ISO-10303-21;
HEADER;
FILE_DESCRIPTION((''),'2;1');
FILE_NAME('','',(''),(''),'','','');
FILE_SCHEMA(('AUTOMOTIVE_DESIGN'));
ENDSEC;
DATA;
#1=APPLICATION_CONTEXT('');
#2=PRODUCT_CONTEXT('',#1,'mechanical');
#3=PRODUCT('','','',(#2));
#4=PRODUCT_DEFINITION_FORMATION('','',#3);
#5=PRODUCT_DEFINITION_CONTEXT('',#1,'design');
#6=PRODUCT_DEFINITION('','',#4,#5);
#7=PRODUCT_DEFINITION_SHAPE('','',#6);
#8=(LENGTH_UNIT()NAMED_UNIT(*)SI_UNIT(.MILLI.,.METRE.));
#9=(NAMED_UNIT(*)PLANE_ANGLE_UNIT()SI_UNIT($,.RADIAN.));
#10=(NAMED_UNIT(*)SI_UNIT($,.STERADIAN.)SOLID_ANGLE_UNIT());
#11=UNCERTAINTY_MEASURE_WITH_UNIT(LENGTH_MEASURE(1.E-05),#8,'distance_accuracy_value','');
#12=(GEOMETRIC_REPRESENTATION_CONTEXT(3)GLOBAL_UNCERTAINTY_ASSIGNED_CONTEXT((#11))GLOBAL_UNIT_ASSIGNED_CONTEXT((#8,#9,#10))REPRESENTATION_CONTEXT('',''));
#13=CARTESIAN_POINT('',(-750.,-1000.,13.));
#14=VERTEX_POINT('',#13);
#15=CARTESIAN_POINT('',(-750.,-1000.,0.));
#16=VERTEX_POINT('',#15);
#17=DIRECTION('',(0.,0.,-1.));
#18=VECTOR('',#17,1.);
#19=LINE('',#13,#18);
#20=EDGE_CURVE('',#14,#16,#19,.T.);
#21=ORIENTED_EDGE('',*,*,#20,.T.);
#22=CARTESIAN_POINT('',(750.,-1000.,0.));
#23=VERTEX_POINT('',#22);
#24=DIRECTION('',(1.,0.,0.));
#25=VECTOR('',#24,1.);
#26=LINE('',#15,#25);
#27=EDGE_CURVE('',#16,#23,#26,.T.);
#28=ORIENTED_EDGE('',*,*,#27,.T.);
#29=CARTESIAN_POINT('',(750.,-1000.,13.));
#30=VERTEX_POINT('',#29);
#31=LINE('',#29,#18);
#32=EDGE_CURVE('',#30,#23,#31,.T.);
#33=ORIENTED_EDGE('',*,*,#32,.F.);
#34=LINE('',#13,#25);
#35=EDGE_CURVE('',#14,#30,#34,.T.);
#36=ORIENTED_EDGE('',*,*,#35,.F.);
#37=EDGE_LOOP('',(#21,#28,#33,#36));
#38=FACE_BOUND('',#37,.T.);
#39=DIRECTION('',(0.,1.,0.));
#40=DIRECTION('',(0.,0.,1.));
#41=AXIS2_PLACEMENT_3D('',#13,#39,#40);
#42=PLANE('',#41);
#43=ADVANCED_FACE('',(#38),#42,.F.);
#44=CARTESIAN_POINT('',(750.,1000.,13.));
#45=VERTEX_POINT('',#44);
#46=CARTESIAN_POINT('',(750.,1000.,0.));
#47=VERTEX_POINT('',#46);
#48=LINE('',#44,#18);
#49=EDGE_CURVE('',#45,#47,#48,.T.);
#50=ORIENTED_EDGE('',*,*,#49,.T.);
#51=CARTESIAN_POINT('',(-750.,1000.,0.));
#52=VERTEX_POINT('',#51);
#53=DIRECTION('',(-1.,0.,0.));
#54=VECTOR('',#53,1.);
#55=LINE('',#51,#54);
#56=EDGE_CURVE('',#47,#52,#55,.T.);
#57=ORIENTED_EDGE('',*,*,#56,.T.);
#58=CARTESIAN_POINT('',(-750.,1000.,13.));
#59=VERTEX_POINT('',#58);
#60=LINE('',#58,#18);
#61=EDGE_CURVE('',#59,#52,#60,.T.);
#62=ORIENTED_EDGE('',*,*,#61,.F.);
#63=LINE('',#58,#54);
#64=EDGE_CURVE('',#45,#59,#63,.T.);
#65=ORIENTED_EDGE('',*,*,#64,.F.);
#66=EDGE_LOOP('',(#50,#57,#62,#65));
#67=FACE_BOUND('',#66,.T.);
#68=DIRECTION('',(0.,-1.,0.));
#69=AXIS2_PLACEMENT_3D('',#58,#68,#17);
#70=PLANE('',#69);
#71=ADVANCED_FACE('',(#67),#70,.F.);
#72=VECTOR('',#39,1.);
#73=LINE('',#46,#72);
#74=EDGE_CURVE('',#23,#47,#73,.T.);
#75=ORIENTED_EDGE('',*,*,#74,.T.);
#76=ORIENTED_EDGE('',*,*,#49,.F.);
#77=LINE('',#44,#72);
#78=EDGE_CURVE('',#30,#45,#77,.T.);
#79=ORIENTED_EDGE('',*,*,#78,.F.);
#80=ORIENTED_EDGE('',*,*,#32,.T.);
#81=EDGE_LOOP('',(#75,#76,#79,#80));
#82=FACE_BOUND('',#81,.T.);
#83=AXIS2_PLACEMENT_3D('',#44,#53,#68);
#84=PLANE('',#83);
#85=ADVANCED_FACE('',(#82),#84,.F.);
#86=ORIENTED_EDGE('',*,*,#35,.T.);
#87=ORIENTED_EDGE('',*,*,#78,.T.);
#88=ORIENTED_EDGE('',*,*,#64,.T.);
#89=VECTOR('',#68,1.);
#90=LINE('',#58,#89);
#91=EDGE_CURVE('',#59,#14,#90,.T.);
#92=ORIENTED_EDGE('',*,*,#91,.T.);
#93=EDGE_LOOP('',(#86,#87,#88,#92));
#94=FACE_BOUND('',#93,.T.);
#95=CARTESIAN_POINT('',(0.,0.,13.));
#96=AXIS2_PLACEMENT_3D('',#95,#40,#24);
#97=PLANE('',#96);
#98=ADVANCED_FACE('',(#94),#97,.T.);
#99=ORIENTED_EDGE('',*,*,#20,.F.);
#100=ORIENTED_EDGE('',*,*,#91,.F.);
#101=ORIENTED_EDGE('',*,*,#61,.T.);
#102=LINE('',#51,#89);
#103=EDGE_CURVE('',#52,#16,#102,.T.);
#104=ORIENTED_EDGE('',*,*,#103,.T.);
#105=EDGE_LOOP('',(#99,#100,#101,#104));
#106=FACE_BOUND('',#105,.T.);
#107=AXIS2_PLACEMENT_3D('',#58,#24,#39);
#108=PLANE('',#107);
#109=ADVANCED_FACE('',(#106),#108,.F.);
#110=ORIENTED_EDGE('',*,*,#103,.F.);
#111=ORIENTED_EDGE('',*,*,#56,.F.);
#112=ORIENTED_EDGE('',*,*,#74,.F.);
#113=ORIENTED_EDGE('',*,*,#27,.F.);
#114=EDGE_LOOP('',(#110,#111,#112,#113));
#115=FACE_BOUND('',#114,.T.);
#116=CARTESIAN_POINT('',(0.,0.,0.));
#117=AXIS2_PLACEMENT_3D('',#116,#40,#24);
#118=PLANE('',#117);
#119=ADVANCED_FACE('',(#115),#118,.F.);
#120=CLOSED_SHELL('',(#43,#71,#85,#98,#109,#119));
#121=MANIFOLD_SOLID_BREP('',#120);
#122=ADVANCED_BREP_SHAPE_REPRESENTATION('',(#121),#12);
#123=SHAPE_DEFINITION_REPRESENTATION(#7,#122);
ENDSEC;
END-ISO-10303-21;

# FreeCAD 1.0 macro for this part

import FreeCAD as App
import Part
import Sketcher

V = App.Vector
Q = App.Units.Quantity


def add_polygon(sketch, points):
    """Adds a closed chain of lines whose ends are joined by coincident constraints."""
    first, n = sketch.GeometryCount, len(points)
    for a, b in zip(points, points[1:] + points[:1]):
        sketch.addGeometry(Part.LineSegment(App.Vector(*a, 0), App.Vector(*b, 0)), False)
    for i in range(n):
        sketch.addConstraint(Sketcher.Constraint("Coincident", first + i, 2, first + (i + 1) % n, 1))

doc = App.newDocument("Part")
body = doc.addObject("PartDesign::Body", "Body")

# Sketch on XY plane
sketch1 = body.newObject("Sketcher::SketchObject", "Sketch")
sketch1.AttachmentSupport = (doc.getObject("XY_Plane"), [""])
sketch1.MapMode = "FlatFace"
add_polygon(sketch1, [(-750, 1000), (-750, -1000), (750, -1000), (750, 1000)])  # lines 0-3
sketch1.addConstraint(Sketcher.Constraint("Vertical", 0))
sketch1.addConstraint(Sketcher.Constraint("Horizontal", 1))
sketch1.addConstraint(Sketcher.Constraint("Vertical", 2))
sketch1.addConstraint(Sketcher.Constraint("Horizontal", 3))
sketch1.addConstraint(Sketcher.Constraint("Symmetric", 0, 2, 2, 2, -1, 1))
sketch1.addConstraint(Sketcher.Constraint("DistanceX", 1, 1, 1, 2, Q("1500 mm")))
sketch1.addConstraint(Sketcher.Constraint("DistanceY", 0, 2, 0, 1, Q("2000 mm")))
pad1 = body.newObject("PartDesign::Pad", "Pad")
pad1.Profile = sketch1
pad1.Length = 13

doc.recompute()
